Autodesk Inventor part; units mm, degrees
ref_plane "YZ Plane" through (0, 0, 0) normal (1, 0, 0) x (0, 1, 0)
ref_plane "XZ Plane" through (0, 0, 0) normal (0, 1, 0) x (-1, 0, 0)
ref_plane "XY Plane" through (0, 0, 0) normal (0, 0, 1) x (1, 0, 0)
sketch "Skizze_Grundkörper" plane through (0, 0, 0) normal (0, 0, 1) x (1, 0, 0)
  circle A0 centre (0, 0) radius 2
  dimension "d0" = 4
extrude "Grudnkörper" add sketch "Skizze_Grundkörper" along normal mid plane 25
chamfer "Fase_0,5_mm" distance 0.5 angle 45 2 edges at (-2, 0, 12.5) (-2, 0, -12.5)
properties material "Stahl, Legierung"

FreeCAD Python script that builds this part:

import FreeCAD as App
import Part
import Sketcher

V = App.Vector


def edges_at(feature, points):
    """Names of the edges that pass closest to the given points."""
    edges = feature.Shape.Edges
    near = lambda p: min(range(len(edges)), key=lambda i: edges[i].distToShape(Part.Vertex(*p))[0])
    return sorted({f"Edge{near(p) + 1}" for p in points})

doc = App.newDocument("Part")
params = doc.addObject("Spreadsheet::Sheet", "Params")
for row, (alias, value) in enumerate([
    ("sketch1_diameter", "4 mm"),
    ("pad1_length", "25 mm"),
    ("chamfer_size", "0.5 mm"),
], start=1):
    params.set(f"A{row}", alias)
    params.set(f"B{row}", "=" + value)
    params.setAlias(f"B{row}", alias)

body = doc.addObject("PartDesign::Body", "Body")

sketch1 = body.newObject("Sketcher::SketchObject", "Sketch")
sketch1.AttachmentSupport = (doc.getObject("XY_Plane"), [""])
sketch1.MapMode = "FlatFace"
sketch1.addGeometry(Part.Circle(V(0, 0, 0), V(0, 0, 1), 2), False)
sketch1.addConstraint([
    Sketcher.Constraint("Coincident", 0, 3, -1, 1),
    Sketcher.Constraint("Diameter", 0, 4.0),
])
sketch1.setExpression("Constraints[1]", "Params.sketch1_diameter")
pad1 = body.newObject("PartDesign::Pad", "Pad")
pad1.Profile = sketch1
pad1.setExpression("Length", "Params.pad1_length")
pad1.Midplane = True
doc.recompute()

chamfer = body.newObject("PartDesign::Chamfer", "Chamfer")
chamfer.Base = (pad1, edges_at(pad1, [(-2, 0, 12.5), (-2, 0, -12.5)]))
chamfer.setExpression("Size", "Params.chamfer_size")

doc.recompute()
